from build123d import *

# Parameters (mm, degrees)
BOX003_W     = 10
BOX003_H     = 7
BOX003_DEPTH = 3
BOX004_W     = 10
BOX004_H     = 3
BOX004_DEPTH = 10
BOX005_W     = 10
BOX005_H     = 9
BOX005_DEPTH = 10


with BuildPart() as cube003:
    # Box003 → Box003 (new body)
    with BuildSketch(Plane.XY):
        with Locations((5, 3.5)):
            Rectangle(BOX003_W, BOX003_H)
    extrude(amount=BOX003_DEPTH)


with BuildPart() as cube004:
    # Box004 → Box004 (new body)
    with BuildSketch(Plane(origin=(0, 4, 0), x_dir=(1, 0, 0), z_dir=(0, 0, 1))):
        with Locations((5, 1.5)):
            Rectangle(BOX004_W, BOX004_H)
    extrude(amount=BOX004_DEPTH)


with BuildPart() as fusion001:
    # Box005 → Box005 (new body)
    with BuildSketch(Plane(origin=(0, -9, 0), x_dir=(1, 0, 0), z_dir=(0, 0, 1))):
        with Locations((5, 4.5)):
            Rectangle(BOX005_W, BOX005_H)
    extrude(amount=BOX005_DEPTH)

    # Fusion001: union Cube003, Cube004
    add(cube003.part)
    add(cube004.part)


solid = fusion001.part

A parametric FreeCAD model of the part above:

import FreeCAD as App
import Part
import Sketcher

V = App.Vector
Q = App.Units.Quantity

doc = App.newDocument("Part")
body = doc.addObject("PartDesign::Body", "Body")

# Sketch on XY plane
sketch1 = body.newObject("Sketcher::SketchObject", "Sketch")
sketch1.AttachmentSupport = (doc.getObject("XY_Plane"), [""])
sketch1.MapMode = "FlatFace"
sketch1.addGeometry([
    Part.LineSegment(V(0, 7, 0), V(0, 0, 0)),
    Part.LineSegment(V(0, 0, 0), V(10, 0, 0)),
    Part.LineSegment(V(10, 0, 0), V(10, 7, 0)),
    Part.LineSegment(V(10, 7, 0), V(0, 7, 0)),
], False)
sketch1.addConstraint([
    Sketcher.Constraint("Coincident", 0, 2, 1, 1),
    Sketcher.Constraint("Coincident", 1, 2, 2, 1),
    Sketcher.Constraint("Coincident", 2, 2, 3, 1),
    Sketcher.Constraint("Coincident", 3, 2, 0, 1),
    Sketcher.Constraint("Vertical", 0),
    Sketcher.Constraint("Horizontal", 1),
    Sketcher.Constraint("Vertical", 2),
    Sketcher.Constraint("Horizontal", 3),
    Sketcher.Constraint("Coincident", 0, 2, -1, 1),
    Sketcher.Constraint("DistanceX", 1, 1, 1, 2, Q("10 mm")),
    Sketcher.Constraint("DistanceY", 0, 2, 0, 1, Q("7 mm")),
])
pad1 = body.newObject("PartDesign::Pad", "Pad")
pad1.Profile = sketch1
pad1.Length = 3
body2 = doc.addObject("PartDesign::Body", "Body001")

# Sketch on XY plane
sketch2 = body2.newObject("Sketcher::SketchObject", "Sketch001")
sketch2.AttachmentSupport = (doc.getObject("XY_Plane001"), [""])
sketch2.MapMode = "FlatFace"
sketch2.addGeometry([
    Part.LineSegment(V(0, 7, 0), V(0, 4, 0)),
    Part.LineSegment(V(0, 4, 0), V(10, 4, 0)),
    Part.LineSegment(V(10, 4, 0), V(10, 7, 0)),
    Part.LineSegment(V(10, 7, 0), V(0, 7, 0)),
], False)
sketch2.addConstraint([
    Sketcher.Constraint("Coincident", 0, 2, 1, 1),
    Sketcher.Constraint("Coincident", 1, 2, 2, 1),
    Sketcher.Constraint("Coincident", 2, 2, 3, 1),
    Sketcher.Constraint("Coincident", 3, 2, 0, 1),
    Sketcher.Constraint("Vertical", 0),
    Sketcher.Constraint("Horizontal", 1),
    Sketcher.Constraint("Vertical", 2),
    Sketcher.Constraint("Horizontal", 3),
    Sketcher.Constraint("PointOnObject", 0, 2, -2),
    Sketcher.Constraint("DistanceX", 1, 1, 1, 2, Q("10 mm")),
    Sketcher.Constraint("DistanceY", 0, 2, 0, 1, Q("3 mm")),
    Sketcher.Constraint("DistanceY", -1, 1, 0, 2, Q("4 mm")),
])
pad2 = body2.newObject("PartDesign::Pad", "Pad001")
pad2.Profile = sketch2
pad2.Length = 10
body3 = doc.addObject("PartDesign::Body", "Body002")

# Sketch on XY plane
sketch3 = body3.newObject("Sketcher::SketchObject", "Sketch002")
sketch3.AttachmentSupport = (doc.getObject("XY_Plane002"), [""])
sketch3.MapMode = "FlatFace"
sketch3.addGeometry([
    Part.LineSegment(V(0, 0, 0), V(0, -9, 0)),
    Part.LineSegment(V(0, -9, 0), V(10, -9, 0)),
    Part.LineSegment(V(10, -9, 0), V(10, 0, 0)),
    Part.LineSegment(V(10, 0, 0), V(0, 0, 0)),
], False)
sketch3.addConstraint([
    Sketcher.Constraint("Coincident", 0, 2, 1, 1),
    Sketcher.Constraint("Coincident", 1, 2, 2, 1),
    Sketcher.Constraint("Coincident", 2, 2, 3, 1),
    Sketcher.Constraint("Coincident", 3, 2, 0, 1),
    Sketcher.Constraint("Vertical", 0),
    Sketcher.Constraint("Horizontal", 1),
    Sketcher.Constraint("Vertical", 2),
    Sketcher.Constraint("Horizontal", 3),
    Sketcher.Constraint("Coincident", 3, 2, -1, 1),
    Sketcher.Constraint("DistanceX", 1, 1, 1, 2, Q("10 mm")),
    Sketcher.Constraint("DistanceY", 0, 2, 0, 1, Q("9 mm")),
])
pad3 = body3.newObject("PartDesign::Pad", "Pad002")
pad3.Profile = sketch3
pad3.Length = 10
doc.recompute()

boolean = body3.newObject("PartDesign::Boolean", "Boolean")
boolean.Type = "Fuse"
boolean.addObjects([body])
doc.recompute()

boolean2 = body3.newObject("PartDesign::Boolean", "Boolean001")
boolean2.Type = "Fuse"
boolean2.addObjects([body2])

doc.recompute()
